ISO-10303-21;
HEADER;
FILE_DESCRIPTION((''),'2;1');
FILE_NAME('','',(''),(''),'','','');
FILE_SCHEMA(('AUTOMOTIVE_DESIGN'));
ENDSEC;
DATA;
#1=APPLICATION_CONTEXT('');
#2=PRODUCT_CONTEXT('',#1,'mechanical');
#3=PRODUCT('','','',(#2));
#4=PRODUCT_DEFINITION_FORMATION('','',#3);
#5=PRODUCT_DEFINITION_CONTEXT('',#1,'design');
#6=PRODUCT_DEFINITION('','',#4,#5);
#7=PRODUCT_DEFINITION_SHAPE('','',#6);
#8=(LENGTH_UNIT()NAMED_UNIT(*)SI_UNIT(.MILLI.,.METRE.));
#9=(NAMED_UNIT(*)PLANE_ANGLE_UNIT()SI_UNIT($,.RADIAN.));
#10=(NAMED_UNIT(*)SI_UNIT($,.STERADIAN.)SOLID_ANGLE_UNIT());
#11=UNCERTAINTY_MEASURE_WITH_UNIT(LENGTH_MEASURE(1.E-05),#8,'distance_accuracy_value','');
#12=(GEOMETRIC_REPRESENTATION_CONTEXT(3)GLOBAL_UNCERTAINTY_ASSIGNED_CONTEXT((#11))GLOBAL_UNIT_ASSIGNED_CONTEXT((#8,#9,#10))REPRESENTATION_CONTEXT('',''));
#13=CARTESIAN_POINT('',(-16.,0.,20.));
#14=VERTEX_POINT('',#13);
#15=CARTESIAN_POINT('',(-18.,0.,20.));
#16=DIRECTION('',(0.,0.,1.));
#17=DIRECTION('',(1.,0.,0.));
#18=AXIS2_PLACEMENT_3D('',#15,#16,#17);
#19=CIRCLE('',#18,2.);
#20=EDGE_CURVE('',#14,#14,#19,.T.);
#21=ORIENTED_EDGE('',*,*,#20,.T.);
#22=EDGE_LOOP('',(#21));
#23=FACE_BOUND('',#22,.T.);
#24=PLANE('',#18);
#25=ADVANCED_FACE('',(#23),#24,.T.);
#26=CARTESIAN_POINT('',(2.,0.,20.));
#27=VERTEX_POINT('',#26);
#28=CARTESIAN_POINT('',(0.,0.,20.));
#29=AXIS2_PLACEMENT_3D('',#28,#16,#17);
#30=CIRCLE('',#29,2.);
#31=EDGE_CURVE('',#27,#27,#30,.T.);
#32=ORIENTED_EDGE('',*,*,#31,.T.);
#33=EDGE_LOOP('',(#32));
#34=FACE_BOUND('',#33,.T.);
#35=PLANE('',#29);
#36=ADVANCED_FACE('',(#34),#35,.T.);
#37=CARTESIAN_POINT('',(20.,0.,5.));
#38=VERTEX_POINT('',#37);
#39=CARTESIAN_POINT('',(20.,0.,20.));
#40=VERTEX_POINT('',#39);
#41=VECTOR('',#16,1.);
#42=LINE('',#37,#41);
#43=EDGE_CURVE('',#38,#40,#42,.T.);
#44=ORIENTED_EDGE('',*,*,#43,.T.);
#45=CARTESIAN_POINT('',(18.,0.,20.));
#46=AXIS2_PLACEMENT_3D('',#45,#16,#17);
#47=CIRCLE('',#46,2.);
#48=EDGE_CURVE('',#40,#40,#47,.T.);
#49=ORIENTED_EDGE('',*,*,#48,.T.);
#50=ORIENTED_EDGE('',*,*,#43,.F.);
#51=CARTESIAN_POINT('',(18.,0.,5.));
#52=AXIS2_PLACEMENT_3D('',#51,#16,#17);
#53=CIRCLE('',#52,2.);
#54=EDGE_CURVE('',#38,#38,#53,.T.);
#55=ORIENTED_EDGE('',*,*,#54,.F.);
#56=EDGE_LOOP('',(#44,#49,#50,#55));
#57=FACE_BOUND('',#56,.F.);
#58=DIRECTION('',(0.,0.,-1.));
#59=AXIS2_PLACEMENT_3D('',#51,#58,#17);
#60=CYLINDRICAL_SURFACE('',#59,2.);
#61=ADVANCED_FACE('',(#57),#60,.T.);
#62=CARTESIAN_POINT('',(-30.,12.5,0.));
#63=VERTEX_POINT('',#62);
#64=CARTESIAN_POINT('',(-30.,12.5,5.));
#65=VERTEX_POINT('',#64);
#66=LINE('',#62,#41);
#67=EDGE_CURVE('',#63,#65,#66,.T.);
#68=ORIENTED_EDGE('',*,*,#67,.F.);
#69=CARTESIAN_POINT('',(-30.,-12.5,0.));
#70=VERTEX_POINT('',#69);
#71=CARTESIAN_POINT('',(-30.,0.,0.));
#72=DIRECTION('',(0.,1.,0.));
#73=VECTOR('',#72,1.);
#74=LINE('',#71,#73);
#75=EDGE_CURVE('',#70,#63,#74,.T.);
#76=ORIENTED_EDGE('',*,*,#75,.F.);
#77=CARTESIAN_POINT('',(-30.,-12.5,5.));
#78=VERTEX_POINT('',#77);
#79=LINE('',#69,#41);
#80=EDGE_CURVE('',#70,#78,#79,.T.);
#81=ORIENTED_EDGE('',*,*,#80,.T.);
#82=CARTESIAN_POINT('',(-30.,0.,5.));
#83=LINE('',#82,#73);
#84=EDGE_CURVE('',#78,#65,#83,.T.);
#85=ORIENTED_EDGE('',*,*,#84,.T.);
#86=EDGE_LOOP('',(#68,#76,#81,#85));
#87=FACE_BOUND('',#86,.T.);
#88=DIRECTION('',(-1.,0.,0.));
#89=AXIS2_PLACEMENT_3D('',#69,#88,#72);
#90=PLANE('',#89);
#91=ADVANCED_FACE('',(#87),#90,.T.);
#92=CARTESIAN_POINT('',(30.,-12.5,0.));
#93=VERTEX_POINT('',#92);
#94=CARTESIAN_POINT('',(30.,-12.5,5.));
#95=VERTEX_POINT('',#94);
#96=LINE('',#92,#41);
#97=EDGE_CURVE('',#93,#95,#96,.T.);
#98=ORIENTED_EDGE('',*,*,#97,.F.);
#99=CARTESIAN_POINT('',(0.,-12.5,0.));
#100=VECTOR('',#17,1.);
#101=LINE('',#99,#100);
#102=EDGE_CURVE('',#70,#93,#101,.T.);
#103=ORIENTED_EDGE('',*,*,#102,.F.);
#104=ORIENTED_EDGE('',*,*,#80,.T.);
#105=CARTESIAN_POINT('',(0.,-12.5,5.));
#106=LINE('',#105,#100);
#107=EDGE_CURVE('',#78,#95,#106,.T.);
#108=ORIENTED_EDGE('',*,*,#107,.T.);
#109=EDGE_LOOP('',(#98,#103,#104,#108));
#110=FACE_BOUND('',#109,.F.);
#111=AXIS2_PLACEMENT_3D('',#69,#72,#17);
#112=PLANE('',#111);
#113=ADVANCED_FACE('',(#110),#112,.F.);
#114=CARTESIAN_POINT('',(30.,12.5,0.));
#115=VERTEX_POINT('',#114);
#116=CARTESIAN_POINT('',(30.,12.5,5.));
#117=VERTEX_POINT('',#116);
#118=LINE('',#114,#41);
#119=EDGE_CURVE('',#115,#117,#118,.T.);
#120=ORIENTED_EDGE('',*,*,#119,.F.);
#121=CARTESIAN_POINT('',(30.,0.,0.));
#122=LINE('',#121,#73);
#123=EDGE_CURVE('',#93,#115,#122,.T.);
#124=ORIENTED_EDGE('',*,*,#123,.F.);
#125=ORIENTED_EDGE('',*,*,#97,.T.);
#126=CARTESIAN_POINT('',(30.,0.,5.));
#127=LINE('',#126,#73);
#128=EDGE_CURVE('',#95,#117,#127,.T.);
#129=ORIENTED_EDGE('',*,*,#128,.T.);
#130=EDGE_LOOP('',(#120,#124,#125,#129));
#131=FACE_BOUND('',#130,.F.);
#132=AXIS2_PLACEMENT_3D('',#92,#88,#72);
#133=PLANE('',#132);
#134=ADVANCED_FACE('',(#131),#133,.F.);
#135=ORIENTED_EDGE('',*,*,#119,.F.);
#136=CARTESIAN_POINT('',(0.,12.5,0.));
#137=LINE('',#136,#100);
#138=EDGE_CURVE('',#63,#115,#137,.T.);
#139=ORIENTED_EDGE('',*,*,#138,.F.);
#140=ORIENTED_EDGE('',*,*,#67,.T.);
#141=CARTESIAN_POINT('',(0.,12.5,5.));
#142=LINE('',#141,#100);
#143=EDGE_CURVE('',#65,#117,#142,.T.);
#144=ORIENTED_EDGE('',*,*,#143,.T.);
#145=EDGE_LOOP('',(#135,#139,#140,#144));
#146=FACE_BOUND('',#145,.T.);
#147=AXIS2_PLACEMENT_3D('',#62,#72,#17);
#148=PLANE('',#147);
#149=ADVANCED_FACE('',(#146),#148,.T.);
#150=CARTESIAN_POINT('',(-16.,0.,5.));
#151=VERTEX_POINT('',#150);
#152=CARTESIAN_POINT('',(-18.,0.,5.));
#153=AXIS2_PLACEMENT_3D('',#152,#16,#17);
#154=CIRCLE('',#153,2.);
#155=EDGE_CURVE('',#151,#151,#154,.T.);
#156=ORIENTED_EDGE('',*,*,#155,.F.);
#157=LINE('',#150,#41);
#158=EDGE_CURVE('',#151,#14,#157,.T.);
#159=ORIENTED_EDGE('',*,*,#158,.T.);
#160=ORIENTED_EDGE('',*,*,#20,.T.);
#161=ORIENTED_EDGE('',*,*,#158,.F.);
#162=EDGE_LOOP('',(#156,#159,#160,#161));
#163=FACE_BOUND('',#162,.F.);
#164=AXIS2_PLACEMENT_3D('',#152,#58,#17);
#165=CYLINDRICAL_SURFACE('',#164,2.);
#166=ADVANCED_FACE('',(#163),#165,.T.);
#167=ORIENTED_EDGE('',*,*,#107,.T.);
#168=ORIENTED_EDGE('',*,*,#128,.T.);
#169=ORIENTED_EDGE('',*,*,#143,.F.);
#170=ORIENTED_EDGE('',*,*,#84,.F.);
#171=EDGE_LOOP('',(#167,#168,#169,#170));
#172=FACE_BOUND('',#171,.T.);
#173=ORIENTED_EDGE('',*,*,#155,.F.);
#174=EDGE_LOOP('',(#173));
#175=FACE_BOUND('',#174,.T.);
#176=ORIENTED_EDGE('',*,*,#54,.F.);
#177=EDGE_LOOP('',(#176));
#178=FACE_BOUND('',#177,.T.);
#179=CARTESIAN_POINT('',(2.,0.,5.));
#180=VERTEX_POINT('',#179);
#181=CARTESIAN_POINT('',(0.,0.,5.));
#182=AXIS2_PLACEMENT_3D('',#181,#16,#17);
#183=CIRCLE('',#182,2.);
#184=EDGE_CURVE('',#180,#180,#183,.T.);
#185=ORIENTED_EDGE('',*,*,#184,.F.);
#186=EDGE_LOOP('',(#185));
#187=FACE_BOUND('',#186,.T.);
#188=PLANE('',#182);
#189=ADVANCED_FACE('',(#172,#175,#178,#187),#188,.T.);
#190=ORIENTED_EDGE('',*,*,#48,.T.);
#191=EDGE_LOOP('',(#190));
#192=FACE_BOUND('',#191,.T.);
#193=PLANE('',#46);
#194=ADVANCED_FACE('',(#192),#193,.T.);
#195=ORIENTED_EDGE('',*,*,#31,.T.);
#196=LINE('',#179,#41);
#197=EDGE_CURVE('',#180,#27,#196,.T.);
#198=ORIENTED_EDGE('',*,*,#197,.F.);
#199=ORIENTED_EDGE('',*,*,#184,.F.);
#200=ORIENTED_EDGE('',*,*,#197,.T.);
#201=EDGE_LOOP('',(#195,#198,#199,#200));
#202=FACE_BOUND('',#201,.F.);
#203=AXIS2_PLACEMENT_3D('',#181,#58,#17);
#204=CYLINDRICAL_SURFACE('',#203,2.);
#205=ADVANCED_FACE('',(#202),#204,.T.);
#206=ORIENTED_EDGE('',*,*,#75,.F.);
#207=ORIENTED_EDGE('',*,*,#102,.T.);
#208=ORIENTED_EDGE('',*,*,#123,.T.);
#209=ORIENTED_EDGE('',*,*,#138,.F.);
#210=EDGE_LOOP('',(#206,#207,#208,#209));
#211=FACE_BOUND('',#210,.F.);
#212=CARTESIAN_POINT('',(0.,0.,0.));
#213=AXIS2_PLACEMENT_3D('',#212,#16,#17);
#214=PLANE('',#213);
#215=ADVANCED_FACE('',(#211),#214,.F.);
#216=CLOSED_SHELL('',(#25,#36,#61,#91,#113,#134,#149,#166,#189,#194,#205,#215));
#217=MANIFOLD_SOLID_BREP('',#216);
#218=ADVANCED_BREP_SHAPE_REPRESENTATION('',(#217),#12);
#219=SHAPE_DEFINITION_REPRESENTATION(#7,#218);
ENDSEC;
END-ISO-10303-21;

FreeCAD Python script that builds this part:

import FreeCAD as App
import Part
import Sketcher


def add_polygon(sketch, points):
    """Adds a closed chain of lines whose ends are joined by coincident constraints."""
    first, n = sketch.GeometryCount, len(points)
    for a, b in zip(points, points[1:] + points[:1]):
        sketch.addGeometry(Part.LineSegment(App.Vector(*a, 0), App.Vector(*b, 0)), False)
    for i in range(n):
        sketch.addConstraint(Sketcher.Constraint("Coincident", first + i, 2, first + (i + 1) % n, 1))

doc = App.newDocument("Part")
body = doc.addObject("PartDesign::Body", "Body")

# Sketch on XY plane
sketch1 = body.newObject("Sketcher::SketchObject", "Sketch")
sketch1.AttachmentSupport = (doc.getObject("XY_Plane"), [""])
sketch1.MapMode = "FlatFace"
add_polygon(sketch1, [(-30, 12), (-30, -12), (30, -12), (30, 12)])  # lines 0-3
sketch1.addConstraint([
    Sketcher.Constraint("Vertical", 0),
    Sketcher.Constraint("Horizontal", 1),
    Sketcher.Constraint("Vertical", 2),
    Sketcher.Constraint("Horizontal", 3),
    Sketcher.Constraint("Symmetric", 0, 2, 2, 2, -1, 1),
    Sketcher.Constraint("DistanceX", 1, 1, 1, 2, 60.0),
    Sketcher.Constraint("DistanceY", 0, 2, 0, 1, 25.0),
])
pad1 = body.newObject("PartDesign::Pad", "Pad")
pad1.Profile = sketch1
pad1.Length = 5

# Sketch on XY plane
sketch2 = body.newObject("Sketcher::SketchObject", "Sketch001")
sketch2.AttachmentSupport = (doc.getObject("XY_Plane"), [""])
sketch2.MapMode = "FlatFace"
sketch2.AttachmentOffset = App.Placement(App.Vector(0, 0, 5), App.Rotation())
sketch2.addGeometry(Part.Circle(App.Vector(0, 0, 0), App.Vector(0, 0, 1), 2), False)
sketch2.addConstraint([
    Sketcher.Constraint("Coincident", 0, 3, -1, 1),
    Sketcher.Constraint("Diameter", 0, 4.0),
])
pad2 = body.newObject("PartDesign::Pad", "Pad001")
pad2.Profile = sketch2
pad2.Length = 15

# Sketch on XY plane
sketch3 = body.newObject("Sketcher::SketchObject", "Sketch002")
sketch3.AttachmentSupport = (doc.getObject("XY_Plane"), [""])
sketch3.MapMode = "FlatFace"
sketch3.AttachmentOffset = App.Placement(App.Vector(0, 0, 5), App.Rotation())
sketch3.addGeometry(Part.Circle(App.Vector(18, 0, 0), App.Vector(0, 0, 1), 2), False)
sketch3.addConstraint([
    Sketcher.Constraint("PointOnObject", 0, 3, -1),
    Sketcher.Constraint("Diameter", 0, 4.0),
    Sketcher.Constraint("DistanceX", -1, 1, 0, 3, 18.0),
])
pad3 = body.newObject("PartDesign::Pad", "Pad002")
pad3.Profile = sketch3
pad3.Length = 15

# Sketch on XY plane
sketch4 = body.newObject("Sketcher::SketchObject", "Sketch003")
sketch4.AttachmentSupport = (doc.getObject("XY_Plane"), [""])
sketch4.MapMode = "FlatFace"
sketch4.AttachmentOffset = App.Placement(App.Vector(0, 0, 5), App.Rotation())
sketch4.addGeometry(Part.Circle(App.Vector(18, 0, 0), App.Vector(0, 0, 1), 2), False)
sketch4.addConstraint([
    Sketcher.Constraint("PointOnObject", 0, 3, -1),
    Sketcher.Constraint("Diameter", 0, 4.0),
    Sketcher.Constraint("DistanceX", -1, 1, 0, 3, 18.0),
])
pad4 = body.newObject("PartDesign::Pad", "Pad003")
pad4.Profile = sketch4
pad4.Length = 15

# Sketch on XY plane
sketch5 = body.newObject("Sketcher::SketchObject", "Sketch004")
sketch5.AttachmentSupport = (doc.getObject("XY_Plane"), [""])
sketch5.MapMode = "FlatFace"
sketch5.AttachmentOffset = App.Placement(App.Vector(0, 0, 5), App.Rotation())
sketch5.addGeometry(Part.Circle(App.Vector(-18, 0, 0), App.Vector(0, 0, 1), 2), False)
sketch5.addConstraint([
    Sketcher.Constraint("PointOnObject", 0, 3, -1),
    Sketcher.Constraint("Diameter", 0, 4.0),
    Sketcher.Constraint("DistanceX", 0, 3, -1, 1, 18.0),
])
pad5 = body.newObject("PartDesign::Pad", "Pad004")
pad5.Profile = sketch5
pad5.Length = 15

doc.recompute()
